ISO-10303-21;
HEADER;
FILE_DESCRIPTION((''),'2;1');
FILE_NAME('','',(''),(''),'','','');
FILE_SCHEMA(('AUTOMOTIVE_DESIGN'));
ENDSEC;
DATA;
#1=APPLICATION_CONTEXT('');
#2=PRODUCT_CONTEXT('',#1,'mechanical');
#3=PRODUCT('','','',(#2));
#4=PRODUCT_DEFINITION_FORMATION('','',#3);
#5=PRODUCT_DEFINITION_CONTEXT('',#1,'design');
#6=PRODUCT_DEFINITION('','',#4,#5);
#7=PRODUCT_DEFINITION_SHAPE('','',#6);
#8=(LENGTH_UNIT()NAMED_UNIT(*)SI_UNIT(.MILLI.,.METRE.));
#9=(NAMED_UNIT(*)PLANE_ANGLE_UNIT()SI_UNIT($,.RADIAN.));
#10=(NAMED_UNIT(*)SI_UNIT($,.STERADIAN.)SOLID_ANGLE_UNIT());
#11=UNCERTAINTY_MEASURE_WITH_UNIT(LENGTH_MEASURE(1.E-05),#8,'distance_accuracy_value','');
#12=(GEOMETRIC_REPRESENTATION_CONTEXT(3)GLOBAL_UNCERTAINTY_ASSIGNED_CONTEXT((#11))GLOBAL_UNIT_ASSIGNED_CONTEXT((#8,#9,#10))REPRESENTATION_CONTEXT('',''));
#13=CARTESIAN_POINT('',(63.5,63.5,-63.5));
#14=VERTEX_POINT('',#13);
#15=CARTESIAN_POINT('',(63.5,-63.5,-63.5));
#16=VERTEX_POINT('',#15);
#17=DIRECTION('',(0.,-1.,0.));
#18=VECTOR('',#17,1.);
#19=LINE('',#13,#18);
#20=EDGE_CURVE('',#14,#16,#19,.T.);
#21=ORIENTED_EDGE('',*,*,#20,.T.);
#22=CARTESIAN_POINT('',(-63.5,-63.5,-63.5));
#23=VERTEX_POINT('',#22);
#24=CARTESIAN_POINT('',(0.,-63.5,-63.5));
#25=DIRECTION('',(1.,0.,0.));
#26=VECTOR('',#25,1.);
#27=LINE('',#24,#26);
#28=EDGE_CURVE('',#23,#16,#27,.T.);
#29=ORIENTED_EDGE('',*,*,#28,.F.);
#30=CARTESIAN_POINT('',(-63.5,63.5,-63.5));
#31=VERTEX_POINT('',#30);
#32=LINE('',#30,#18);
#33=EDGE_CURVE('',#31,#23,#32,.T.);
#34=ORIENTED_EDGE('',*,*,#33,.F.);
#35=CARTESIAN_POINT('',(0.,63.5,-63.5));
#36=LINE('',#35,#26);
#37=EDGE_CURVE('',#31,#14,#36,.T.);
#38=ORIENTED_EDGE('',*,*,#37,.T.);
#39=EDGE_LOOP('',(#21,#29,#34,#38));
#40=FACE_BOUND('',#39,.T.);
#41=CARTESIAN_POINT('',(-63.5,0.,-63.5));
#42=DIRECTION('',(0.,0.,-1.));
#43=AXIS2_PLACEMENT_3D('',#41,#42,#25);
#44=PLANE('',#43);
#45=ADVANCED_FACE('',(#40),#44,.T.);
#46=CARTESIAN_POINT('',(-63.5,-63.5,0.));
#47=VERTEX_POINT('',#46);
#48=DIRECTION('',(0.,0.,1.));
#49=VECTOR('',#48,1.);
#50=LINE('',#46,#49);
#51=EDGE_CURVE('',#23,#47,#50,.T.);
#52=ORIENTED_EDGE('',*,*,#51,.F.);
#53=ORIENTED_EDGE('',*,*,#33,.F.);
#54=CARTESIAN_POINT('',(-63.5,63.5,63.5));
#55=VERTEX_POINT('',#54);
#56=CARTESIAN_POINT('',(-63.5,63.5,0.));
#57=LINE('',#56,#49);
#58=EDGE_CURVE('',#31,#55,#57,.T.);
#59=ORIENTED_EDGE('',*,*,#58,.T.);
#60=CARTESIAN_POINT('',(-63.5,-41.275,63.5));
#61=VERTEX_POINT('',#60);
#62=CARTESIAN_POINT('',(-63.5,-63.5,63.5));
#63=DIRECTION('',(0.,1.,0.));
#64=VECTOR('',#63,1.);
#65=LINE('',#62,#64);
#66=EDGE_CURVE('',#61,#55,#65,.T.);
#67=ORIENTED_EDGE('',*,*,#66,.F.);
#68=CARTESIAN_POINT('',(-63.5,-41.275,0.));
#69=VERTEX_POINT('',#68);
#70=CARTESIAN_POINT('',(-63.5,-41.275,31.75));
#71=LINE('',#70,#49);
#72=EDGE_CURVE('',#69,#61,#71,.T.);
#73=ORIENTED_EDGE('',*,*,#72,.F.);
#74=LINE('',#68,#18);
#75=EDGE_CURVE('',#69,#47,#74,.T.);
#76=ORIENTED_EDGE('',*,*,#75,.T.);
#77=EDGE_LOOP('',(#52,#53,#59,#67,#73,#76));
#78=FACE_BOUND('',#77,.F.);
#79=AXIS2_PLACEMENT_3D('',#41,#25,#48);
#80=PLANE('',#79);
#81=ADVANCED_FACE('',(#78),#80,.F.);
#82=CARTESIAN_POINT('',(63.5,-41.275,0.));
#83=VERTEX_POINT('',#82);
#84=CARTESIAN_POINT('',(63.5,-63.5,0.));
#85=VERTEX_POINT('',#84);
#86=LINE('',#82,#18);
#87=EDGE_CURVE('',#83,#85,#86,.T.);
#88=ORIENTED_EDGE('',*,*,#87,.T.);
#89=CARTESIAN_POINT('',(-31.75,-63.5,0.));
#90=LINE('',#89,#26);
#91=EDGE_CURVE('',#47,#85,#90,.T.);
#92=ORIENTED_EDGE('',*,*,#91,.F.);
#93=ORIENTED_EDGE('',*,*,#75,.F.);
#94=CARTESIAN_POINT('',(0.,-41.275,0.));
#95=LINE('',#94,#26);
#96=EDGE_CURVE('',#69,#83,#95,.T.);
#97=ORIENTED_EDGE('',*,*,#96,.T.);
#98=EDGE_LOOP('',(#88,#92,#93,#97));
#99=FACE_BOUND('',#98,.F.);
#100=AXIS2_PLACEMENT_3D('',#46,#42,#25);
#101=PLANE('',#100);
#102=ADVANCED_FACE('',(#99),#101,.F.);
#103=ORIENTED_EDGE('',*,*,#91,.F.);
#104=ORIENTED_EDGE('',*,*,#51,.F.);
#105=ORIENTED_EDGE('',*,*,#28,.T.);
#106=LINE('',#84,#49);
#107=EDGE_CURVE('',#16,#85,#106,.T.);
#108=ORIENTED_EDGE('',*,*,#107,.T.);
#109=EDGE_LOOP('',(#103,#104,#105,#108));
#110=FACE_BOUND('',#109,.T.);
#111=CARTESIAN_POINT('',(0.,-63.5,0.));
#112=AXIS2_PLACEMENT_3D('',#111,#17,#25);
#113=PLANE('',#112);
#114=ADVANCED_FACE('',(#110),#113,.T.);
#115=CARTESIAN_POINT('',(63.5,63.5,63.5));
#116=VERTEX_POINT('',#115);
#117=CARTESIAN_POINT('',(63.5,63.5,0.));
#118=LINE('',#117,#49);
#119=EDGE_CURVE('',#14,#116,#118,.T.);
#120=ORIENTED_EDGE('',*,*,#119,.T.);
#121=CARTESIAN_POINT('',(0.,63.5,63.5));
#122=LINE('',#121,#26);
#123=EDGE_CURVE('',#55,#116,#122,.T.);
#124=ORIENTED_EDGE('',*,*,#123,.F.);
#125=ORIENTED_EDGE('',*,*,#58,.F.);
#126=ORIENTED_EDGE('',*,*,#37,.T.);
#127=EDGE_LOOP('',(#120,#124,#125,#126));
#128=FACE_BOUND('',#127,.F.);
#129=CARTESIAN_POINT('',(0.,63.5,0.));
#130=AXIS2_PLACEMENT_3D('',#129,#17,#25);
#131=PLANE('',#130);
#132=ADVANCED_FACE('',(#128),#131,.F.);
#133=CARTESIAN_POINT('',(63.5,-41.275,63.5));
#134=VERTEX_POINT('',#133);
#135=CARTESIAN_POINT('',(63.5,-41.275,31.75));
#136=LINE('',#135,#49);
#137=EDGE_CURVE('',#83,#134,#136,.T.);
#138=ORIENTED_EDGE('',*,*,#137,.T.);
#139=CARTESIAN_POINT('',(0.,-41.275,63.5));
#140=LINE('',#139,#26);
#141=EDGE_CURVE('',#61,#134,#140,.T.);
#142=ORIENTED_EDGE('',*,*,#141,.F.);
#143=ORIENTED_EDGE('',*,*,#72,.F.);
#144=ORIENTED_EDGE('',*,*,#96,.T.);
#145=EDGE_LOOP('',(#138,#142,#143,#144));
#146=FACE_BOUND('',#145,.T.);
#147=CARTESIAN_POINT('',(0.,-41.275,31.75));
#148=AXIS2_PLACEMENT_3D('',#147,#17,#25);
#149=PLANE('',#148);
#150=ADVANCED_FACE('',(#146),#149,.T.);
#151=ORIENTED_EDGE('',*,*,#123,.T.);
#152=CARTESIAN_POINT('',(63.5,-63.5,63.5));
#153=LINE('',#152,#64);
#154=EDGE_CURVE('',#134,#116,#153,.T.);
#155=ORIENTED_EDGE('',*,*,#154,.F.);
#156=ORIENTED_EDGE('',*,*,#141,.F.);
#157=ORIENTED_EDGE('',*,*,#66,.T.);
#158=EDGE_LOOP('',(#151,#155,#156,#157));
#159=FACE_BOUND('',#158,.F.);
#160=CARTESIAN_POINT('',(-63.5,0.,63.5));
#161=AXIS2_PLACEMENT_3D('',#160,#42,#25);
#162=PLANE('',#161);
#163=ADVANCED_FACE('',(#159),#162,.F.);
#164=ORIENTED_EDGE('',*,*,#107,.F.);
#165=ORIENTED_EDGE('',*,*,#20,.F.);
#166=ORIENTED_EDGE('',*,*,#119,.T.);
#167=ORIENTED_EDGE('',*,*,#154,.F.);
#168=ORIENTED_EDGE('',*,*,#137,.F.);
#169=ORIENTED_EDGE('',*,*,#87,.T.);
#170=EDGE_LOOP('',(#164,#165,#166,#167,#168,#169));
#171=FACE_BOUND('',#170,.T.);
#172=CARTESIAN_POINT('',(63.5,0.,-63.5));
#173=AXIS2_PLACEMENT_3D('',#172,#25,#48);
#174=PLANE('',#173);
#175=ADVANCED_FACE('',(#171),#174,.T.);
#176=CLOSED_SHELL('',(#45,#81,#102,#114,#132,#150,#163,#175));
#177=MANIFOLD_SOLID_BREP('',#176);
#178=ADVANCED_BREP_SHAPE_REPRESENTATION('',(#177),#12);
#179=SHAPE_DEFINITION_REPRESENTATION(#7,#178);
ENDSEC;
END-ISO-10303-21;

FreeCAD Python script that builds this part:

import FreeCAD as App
import Part
import Sketcher
Q = App.Units.Quantity


def add_polygon(sketch, points):
    """Adds a closed chain of lines whose ends are joined by coincident constraints."""
    first, n = sketch.GeometryCount, len(points)
    for a, b in zip(points, points[1:] + points[:1]):
        sketch.addGeometry(Part.LineSegment(App.Vector(*a, 0), App.Vector(*b, 0)), False)
    for i in range(n):
        sketch.addConstraint(Sketcher.Constraint("Coincident", first + i, 2, first + (i + 1) % n, 1))

doc = App.newDocument("Part")
body = doc.addObject("PartDesign::Body", "Body")

# Sketch on XZ plane
sketch1 = body.newObject("Sketcher::SketchObject", "Sketch")
sketch1.AttachmentSupport = (doc.getObject("XZ_Plane"), [""])
sketch1.MapMode = "FlatFace"
add_polygon(sketch1, [(-64, 64), (-64, -64), (64, -64), (64, 64)])  # lines 0-3
sketch1.addConstraint([
    Sketcher.Constraint("Vertical", 0),
    Sketcher.Constraint("Horizontal", 1),
    Sketcher.Constraint("Vertical", 2),
    Sketcher.Constraint("Horizontal", 3),
    Sketcher.Constraint("Symmetric", 0, 2, 2, 2, -1, 1),
    Sketcher.Constraint("Equal", 3, 0),
    Sketcher.Constraint("DistanceX", 1, 1, 1, 2, Q("5 in")),
])
pad1 = body.newObject("PartDesign::Pad", "Pad")
pad1.Profile = sketch1
pad1.Type = "TwoLengths"
pad1.Length = Q("2.5 in")
pad1.Length2 = Q("2.5 in")

# Sketch on XZ plane
sketch2 = body.newObject("Sketcher::SketchObject", "Sketch001")
sketch2.AttachmentSupport = (doc.getObject("XZ_Plane"), [""])
sketch2.MapMode = "FlatFace"
sketch2.AttachmentOffset = App.Placement(App.Vector(0, 0, 2.5 * 25.4), App.Rotation())
add_polygon(sketch2, [(-64, 64), (-64, 0), (64, 0), (64, 64)])  # lines 0-3
sketch2.addConstraint([
    Sketcher.Constraint("Vertical", 0),
    Sketcher.Constraint("Horizontal", 1),
    Sketcher.Constraint("Vertical", 2),
    Sketcher.Constraint("Horizontal", 3),
    Sketcher.Constraint("Symmetric", 0, 2, 1, 2, -1, 1),
    Sketcher.Constraint("DistanceX", 1, 1, 1, 2, Q("5 in")),
    Sketcher.Constraint("DistanceY", 0, 2, 0, 1, Q("2.5 in")),
])
pocket1 = body.newObject("PartDesign::Pocket", "Pocket")
pocket1.Profile = sketch2
pocket1.Length = Q("1.75 in")
pocket1.Midplane = True

doc.recompute()
